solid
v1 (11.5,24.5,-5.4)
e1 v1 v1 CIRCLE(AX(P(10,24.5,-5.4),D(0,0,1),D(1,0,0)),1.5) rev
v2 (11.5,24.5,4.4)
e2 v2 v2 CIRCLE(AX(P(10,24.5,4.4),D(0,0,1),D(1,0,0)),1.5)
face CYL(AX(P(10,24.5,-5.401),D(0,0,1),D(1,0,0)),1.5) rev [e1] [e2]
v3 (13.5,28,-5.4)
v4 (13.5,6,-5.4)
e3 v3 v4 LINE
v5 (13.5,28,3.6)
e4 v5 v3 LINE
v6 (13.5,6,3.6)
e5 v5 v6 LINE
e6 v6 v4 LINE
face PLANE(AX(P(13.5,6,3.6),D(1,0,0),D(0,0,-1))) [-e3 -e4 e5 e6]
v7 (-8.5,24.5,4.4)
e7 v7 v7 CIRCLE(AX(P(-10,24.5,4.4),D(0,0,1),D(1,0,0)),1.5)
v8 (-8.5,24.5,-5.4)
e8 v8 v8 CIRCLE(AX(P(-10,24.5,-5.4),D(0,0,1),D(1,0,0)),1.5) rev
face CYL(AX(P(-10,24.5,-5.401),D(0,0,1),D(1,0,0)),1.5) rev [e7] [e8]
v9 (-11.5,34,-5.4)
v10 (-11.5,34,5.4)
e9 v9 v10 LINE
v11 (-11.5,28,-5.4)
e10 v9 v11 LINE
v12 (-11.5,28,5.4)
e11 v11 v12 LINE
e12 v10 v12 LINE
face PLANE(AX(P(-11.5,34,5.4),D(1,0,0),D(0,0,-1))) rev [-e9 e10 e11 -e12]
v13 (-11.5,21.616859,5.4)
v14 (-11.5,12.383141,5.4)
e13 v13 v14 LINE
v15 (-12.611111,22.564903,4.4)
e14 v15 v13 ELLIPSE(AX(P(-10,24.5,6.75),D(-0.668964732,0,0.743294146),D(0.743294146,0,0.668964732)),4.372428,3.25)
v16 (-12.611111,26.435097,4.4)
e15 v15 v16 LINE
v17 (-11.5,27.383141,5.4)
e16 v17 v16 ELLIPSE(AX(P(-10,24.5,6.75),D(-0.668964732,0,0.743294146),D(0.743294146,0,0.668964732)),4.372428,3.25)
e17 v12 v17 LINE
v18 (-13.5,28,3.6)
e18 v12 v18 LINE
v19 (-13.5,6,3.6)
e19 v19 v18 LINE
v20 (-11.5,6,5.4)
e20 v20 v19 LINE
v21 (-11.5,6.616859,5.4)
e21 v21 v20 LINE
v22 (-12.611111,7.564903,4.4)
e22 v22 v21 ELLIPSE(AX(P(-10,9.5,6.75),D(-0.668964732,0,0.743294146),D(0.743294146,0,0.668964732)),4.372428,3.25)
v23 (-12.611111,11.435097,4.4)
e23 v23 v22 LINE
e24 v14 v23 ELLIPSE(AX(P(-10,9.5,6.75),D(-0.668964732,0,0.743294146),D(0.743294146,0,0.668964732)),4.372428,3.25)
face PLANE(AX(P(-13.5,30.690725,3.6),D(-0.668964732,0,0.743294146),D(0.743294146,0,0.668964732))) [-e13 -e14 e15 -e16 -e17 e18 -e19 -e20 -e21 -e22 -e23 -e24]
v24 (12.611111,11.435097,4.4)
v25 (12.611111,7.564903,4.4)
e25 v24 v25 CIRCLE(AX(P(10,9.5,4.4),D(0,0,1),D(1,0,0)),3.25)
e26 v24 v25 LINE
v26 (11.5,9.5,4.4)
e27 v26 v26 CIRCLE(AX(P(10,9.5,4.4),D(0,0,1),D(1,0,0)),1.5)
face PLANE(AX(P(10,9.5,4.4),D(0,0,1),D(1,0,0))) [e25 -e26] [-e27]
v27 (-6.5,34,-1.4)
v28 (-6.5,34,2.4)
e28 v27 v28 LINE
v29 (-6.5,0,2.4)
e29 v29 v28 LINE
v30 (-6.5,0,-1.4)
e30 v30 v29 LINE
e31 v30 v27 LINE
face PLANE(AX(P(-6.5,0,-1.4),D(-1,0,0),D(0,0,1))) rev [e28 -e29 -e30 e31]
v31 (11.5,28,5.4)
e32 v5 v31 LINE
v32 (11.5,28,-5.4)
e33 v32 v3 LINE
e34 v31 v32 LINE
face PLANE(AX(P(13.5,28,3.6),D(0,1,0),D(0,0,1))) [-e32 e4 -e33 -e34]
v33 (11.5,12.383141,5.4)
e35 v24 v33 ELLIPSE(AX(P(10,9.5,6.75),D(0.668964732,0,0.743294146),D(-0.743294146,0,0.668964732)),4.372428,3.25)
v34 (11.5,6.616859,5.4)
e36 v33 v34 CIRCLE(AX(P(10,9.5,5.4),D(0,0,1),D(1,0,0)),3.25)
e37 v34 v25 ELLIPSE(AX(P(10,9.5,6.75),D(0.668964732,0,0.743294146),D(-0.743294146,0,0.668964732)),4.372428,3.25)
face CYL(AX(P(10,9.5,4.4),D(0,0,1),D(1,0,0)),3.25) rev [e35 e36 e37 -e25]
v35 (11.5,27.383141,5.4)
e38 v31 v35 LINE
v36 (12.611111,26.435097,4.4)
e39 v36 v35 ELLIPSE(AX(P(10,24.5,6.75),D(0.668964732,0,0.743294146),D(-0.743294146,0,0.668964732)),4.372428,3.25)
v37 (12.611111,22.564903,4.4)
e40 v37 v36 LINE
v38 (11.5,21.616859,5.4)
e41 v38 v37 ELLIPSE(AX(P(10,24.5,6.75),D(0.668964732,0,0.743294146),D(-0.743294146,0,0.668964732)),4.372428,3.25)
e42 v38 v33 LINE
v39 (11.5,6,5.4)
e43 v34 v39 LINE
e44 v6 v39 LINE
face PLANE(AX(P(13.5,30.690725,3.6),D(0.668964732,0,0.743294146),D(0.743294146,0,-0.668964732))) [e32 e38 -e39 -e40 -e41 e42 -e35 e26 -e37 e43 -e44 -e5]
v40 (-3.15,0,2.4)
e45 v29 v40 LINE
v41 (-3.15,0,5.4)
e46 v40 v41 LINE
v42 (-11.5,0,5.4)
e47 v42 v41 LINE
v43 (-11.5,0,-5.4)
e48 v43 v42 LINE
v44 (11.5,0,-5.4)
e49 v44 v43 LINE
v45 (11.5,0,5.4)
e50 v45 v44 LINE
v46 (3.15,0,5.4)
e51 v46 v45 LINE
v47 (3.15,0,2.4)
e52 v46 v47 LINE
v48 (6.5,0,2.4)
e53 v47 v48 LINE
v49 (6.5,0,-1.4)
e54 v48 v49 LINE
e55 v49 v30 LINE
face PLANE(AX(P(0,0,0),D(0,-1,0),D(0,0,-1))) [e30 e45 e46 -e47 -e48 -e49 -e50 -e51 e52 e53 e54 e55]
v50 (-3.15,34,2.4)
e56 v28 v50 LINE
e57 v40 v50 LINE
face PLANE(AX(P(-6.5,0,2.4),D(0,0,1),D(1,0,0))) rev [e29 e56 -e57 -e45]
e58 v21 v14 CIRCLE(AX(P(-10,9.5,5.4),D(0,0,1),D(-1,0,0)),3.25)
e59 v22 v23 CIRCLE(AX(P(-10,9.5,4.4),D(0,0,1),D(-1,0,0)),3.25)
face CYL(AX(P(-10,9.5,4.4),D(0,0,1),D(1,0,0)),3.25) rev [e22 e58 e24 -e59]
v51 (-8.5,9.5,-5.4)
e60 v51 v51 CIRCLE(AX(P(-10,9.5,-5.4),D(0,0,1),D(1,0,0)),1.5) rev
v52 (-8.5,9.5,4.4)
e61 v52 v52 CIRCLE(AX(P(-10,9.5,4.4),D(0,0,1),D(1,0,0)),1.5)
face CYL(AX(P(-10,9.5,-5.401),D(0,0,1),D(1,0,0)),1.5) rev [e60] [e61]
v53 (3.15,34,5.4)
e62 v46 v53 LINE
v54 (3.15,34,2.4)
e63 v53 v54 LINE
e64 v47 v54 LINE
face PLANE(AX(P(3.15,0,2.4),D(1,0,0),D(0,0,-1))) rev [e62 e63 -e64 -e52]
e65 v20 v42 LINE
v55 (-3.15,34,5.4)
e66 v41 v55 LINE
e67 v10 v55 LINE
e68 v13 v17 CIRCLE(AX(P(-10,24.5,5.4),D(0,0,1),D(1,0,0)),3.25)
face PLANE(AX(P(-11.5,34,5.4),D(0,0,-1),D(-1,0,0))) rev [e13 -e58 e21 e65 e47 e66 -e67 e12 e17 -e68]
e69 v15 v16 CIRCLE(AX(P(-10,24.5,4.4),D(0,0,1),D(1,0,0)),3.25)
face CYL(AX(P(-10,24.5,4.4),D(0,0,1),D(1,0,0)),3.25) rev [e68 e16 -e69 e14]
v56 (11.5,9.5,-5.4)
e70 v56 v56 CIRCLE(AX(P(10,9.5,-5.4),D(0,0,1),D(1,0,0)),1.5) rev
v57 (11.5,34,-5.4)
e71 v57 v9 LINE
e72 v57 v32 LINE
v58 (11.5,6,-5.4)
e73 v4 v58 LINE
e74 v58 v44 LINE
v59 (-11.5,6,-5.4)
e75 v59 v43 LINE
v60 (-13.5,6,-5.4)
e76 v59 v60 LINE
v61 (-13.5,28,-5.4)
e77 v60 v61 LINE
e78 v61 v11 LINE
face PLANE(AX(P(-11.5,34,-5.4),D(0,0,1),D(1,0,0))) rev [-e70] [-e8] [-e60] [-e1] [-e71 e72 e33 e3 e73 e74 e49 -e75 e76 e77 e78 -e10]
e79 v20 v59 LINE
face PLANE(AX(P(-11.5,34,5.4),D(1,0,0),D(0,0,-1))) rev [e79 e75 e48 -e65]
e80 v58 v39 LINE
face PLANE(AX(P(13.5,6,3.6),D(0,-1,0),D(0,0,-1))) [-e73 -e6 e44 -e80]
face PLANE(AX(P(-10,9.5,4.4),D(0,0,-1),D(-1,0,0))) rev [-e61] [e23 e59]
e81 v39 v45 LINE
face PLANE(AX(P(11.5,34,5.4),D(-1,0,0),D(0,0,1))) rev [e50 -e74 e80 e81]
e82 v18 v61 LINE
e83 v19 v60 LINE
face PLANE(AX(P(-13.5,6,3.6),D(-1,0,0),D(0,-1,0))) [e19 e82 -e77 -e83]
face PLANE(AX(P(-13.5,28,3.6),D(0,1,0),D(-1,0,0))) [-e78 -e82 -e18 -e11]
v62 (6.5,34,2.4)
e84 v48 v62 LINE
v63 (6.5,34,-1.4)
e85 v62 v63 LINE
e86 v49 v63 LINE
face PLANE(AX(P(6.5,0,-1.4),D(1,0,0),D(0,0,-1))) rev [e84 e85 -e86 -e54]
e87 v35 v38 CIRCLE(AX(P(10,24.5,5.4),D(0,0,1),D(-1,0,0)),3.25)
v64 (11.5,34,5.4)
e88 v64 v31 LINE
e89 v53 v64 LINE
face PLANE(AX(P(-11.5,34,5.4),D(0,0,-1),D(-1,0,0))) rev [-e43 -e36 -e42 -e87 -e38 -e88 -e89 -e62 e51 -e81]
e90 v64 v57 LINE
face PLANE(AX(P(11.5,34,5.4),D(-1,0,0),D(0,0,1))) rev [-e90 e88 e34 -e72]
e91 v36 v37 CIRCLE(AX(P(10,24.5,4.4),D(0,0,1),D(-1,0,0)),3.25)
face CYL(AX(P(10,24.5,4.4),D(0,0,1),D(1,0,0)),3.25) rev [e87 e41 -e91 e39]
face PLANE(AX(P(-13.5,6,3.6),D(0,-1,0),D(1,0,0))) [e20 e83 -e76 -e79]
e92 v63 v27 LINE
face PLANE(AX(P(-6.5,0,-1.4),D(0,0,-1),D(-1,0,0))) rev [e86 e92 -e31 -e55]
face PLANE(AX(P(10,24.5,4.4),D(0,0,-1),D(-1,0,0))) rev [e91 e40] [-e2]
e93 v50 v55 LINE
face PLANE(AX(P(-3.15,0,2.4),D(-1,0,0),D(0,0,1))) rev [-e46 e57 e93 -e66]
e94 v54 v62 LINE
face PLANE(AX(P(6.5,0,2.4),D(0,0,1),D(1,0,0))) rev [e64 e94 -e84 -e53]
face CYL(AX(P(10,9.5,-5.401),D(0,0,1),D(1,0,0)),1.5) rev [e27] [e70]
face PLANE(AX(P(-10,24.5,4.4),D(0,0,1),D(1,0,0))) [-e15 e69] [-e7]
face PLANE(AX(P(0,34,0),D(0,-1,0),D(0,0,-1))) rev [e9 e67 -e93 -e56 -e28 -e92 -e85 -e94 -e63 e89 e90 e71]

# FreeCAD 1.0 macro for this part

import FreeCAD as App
import Part
import Sketcher

V = App.Vector
Q = App.Units.Quantity

doc = App.newDocument("Part")
params = doc.addObject("Spreadsheet::Sheet", "Params")
for row, (alias, value) in enumerate([
    ("sketch1_width", "23 mm"),
    ("sketch1_height", "10.8 mm"),
    ("pad1_length", "34 mm"),
    ("sketch2_width", "13 mm"),
    ("sketch2_height", "3 mm"),
    ("sketch2_width2", "6.3 mm"),
    ("sketch2_height2", "3.8 mm"),
    ("sketch3_width", "7 mm"),
    ("sketch3_height", "22 mm"),
    ("pad2_length", "9 mm"),
    ("sketch4_width", "2 mm"),
    ("sketch4_height", "1.8 mm"),
    ("pad3_length", "22 mm"),
    ("sketch5_diameter", "6.5 mm"),
    ("pocket2_length", "1 mm"),
    ("sketch6_diameter", "3 mm"),
    ("sketch7_diameter", "3 mm"),
    ("sketch8_diameter", "3 mm"),
    ("sketch9_diameter", "3 mm"),
], start=1):
    params.set(f"A{row}", alias)
    params.set(f"B{row}", "=" + value)
    params.setAlias(f"B{row}", alias)

body = doc.addObject("PartDesign::Body", "Body")

# Sketch on XZ plane
sketch1 = body.newObject("Sketcher::SketchObject", "Sketch")
sketch1.AttachmentSupport = (doc.getObject("XZ_Plane"), [""])
sketch1.MapMode = "FlatFace"
sketch1.addGeometry([
    Part.LineSegment(V(-11.5, -5.4, 0), V(-11.5, 5.4, 0)),
    Part.LineSegment(V(-11.5, 5.4, 0), V(11.5, 5.4, 0)),
    Part.LineSegment(V(11.5, 5.4, 0), V(11.5, -5.4, 0)),
    Part.LineSegment(V(11.5, -5.4, 0), V(-11.5, -5.4, 0)),
], False)
sketch1.addConstraint([
    Sketcher.Constraint("Coincident", 0, 2, 1, 1),
    Sketcher.Constraint("Coincident", 1, 2, 2, 1),
    Sketcher.Constraint("Coincident", 2, 2, 3, 1),
    Sketcher.Constraint("Coincident", 3, 2, 0, 1),
    Sketcher.Constraint("Vertical", 0),
    Sketcher.Constraint("Horizontal", 1),
    Sketcher.Constraint("Vertical", 2),
    Sketcher.Constraint("Horizontal", 3),
    Sketcher.Constraint("Symmetric", 0, 2, 2, 2, -1, 1),
    Sketcher.Constraint("DistanceX", 1, 1, 1, 2, Q("23 mm")),
    Sketcher.Constraint("DistanceY", 0, 1, 0, 2, Q("10.8 mm")),
])
sketch1.setExpression("Constraints[9]", "Params.sketch1_width")
sketch1.setExpression("Constraints[10]", "Params.sketch1_height")
pad1 = body.newObject("PartDesign::Pad", "Pad")
pad1.Profile = sketch1
pad1.setExpression("Length", "Params.pad1_length")
pad1.Reversed = True

# Sketch on XZ plane
sketch2 = body.newObject("Sketcher::SketchObject", "Sketch001")
sketch2.AttachmentSupport = (doc.getObject("XZ_Plane"), [""])
sketch2.MapMode = "FlatFace"
sketch2.AttachmentOffset = App.Placement(V(0, 0, -34), App.Rotation())
sketch2.addGeometry([
    Part.LineSegment(V(6.5, -1.4, 0), V(-6.5, -1.4, 0)),  # 0
    Part.LineSegment(V(-6.5, -1.4, 0), V(-6.5, 2.4, 0)),  # 1
    Part.LineSegment(V(-6.5, 2.4, 0), V(-3.15, 2.4, 0)),  # 2
    Part.LineSegment(V(-3.15, 2.4, 0), V(-3.15, 5.4, 0)),  # 3
    Part.LineSegment(V(-3.15, 5.4, 0), V(3.15, 5.4, 0)),  # 4
    Part.LineSegment(V(3.15, 5.4, 0), V(3.15, 2.4, 0)),  # 5
    Part.LineSegment(V(3.15, 2.4, 0), V(6.5, 2.4, 0)),  # 6
    Part.LineSegment(V(6.5, 2.4, 0), V(6.5, -1.4, 0)),  # 7
], False)
sketch2.addConstraint([
    Sketcher.Constraint("Coincident", 0, 2, 1, 1),
    Sketcher.Constraint("Coincident", 1, 2, 2, 1),
    Sketcher.Constraint("Coincident", 2, 2, 3, 1),
    Sketcher.Constraint("Coincident", 3, 2, 4, 1),
    Sketcher.Constraint("Coincident", 4, 2, 5, 1),
    Sketcher.Constraint("Coincident", 5, 2, 6, 1),
    Sketcher.Constraint("Coincident", 6, 2, 7, 1),
    Sketcher.Constraint("Coincident", 7, 2, 0, 1),
    Sketcher.Constraint("Horizontal", 0),
    Sketcher.Constraint("Vertical", 1),
    Sketcher.Constraint("Horizontal", 2),
    Sketcher.Constraint("Vertical", 3),
    Sketcher.Constraint("Horizontal", 4),
    Sketcher.Constraint("Vertical", 5),
    Sketcher.Constraint("Horizontal", 6),
    Sketcher.Constraint("Vertical", 7),
    Sketcher.Constraint("Symmetric", 2, 2, 5, 2, -2),
    Sketcher.Constraint("Equal", 2, 6),
    Sketcher.Constraint("DistanceX", 0, 2, 0, 1, Q("13 mm")),
    Sketcher.Constraint("DistanceY", 3, 1, 3, 2, Q("3 mm")),
    Sketcher.Constraint("DistanceX", 4, 1, 4, 2, Q("6.3 mm")),
    Sketcher.Constraint("DistanceY", 1, 1, 1, 2, Q("3.8 mm")),
    Sketcher.Constraint("DistanceY", 0, 2, -1, 1, Q("1.4 mm")),
])
sketch2.setExpression("Constraints[18]", "Params.sketch2_width")
sketch2.setExpression("Constraints[19]", "Params.sketch2_height")
sketch2.setExpression("Constraints[20]", "Params.sketch2_width2")
sketch2.setExpression("Constraints[21]", "Params.sketch2_height2")
pocket1 = body.newObject("PartDesign::Pocket", "Pocket")
pocket1.Profile = sketch2
pocket1.Type = "ThroughAll"
pocket1.Reversed = True

# Sketch on XY plane
sketch3 = body.newObject("Sketcher::SketchObject", "Sketch002")
sketch3.AttachmentSupport = (doc.getObject("XY_Plane"), [""])
sketch3.MapMode = "FlatFace"
sketch3.AttachmentOffset = App.Placement(V(0, 0, -5.4), App.Rotation())
sketch3.addGeometry([
    Part.LineSegment(V(13.5, 28, 0), V(13.5, 6, 0)),  # 0
    Part.LineSegment(V(13.5, 6, 0), V(6.5, 6, 0)),  # 1
    Part.LineSegment(V(6.5, 6, 0), V(6.5, 28, 0)),  # 2
    Part.LineSegment(V(6.5, 28, 0), V(13.5, 28, 0)),  # 3
    Part.LineSegment(V(-6.5, 28, 0), V(-6.5, 6, 0)),  # 4
    Part.LineSegment(V(-6.5, 6, 0), V(-13.5, 6, 0)),  # 5
    Part.LineSegment(V(-13.5, 6, 0), V(-13.5, 28, 0)),  # 6
    Part.LineSegment(V(-13.5, 28, 0), V(-6.5, 28, 0)),  # 7
], False)
sketch3.addConstraint([
    Sketcher.Constraint("Coincident", 0, 2, 1, 1),
    Sketcher.Constraint("Coincident", 1, 2, 2, 1),
    Sketcher.Constraint("Coincident", 2, 2, 3, 1),
    Sketcher.Constraint("Coincident", 3, 2, 0, 1),
    Sketcher.Constraint("Coincident", 4, 2, 5, 1),
    Sketcher.Constraint("Coincident", 5, 2, 6, 1),
    Sketcher.Constraint("Coincident", 6, 2, 7, 1),
    Sketcher.Constraint("Coincident", 7, 2, 4, 1),
    Sketcher.Constraint("Vertical", 0),
    Sketcher.Constraint("Horizontal", 1),
    Sketcher.Constraint("Vertical", 2),
    Sketcher.Constraint("Horizontal", 3),
    Sketcher.Constraint("Vertical", 4),
    Sketcher.Constraint("Horizontal", 5),
    Sketcher.Constraint("Vertical", 6),
    Sketcher.Constraint("Horizontal", 7),
    Sketcher.Constraint("Symmetric", 1, 2, 4, 2, -2),
    Sketcher.Constraint("Symmetric", 3, 2, 6, 2, -2),
    Sketcher.Constraint("DistanceX", 1, 2, 1, 1, Q("7 mm")),
    Sketcher.Constraint("DistanceY", 0, 2, 0, 1, Q("22 mm")),
    Sketcher.Constraint("DistanceY", -1, 1, 0, 2, Q("6 mm")),
    Sketcher.Constraint("DistanceX", 4, 2, 1, 2, Q("13 mm")),
])
sketch3.setExpression("Constraints[18]", "Params.sketch3_width")
sketch3.setExpression("Constraints[19]", "Params.sketch3_height")
pad2 = body.newObject("PartDesign::Pad", "Pad001")
pad2.Profile = sketch3
pad2.setExpression("Length", "Params.pad2_length")

# Sketch on XZ plane
sketch4 = body.newObject("Sketcher::SketchObject", "Sketch003")
sketch4.AttachmentSupport = (doc.getObject("XZ_Plane"), [""])
sketch4.MapMode = "FlatFace"
sketch4.AttachmentOffset = App.Placement(V(0, 0, -6), App.Rotation())
sketch4.addGeometry([
    Part.LineSegment(V(11.5, 5.4, 0), V(11.5, 3.6, 0)),  # 0
    Part.LineSegment(V(11.5, 3.6, 0), V(13.5, 3.6, 0)),  # 1
    Part.LineSegment(V(13.5, 3.6, 0), V(11.5, 5.4, 0)),  # 2
    Part.LineSegment(V(-11.5, 5.4, 0), V(-13.5, 3.6, 0)),  # 3
    Part.LineSegment(V(-13.5, 3.6, 0), V(-11.5, 3.6, 0)),  # 4
    Part.LineSegment(V(-11.5, 3.6, 0), V(-11.5, 5.4, 0)),  # 5
], False)
sketch4.addConstraint([
    Sketcher.Constraint("Coincident", 0, 2, 1, 1),
    Sketcher.Constraint("Coincident", 1, 2, 2, 1),
    Sketcher.Constraint("Coincident", 2, 2, 0, 1),
    Sketcher.Constraint("Coincident", 3, 2, 4, 1),
    Sketcher.Constraint("Coincident", 4, 2, 5, 1),
    Sketcher.Constraint("Coincident", 5, 2, 3, 1),
    Sketcher.Constraint("Vertical", 0),
    Sketcher.Constraint("Horizontal", 1),
    Sketcher.Constraint("Horizontal", 4),
    Sketcher.Constraint("Vertical", 5),
    Sketcher.Constraint("Symmetric", 1, 2, 3, 2, -2),
    Sketcher.Constraint("Symmetric", 2, 2, 5, 2, -2),
    Sketcher.Constraint("DistanceX", 1, 1, 1, 2, Q("2 mm")),
    Sketcher.Constraint("DistanceY", 0, 2, 0, 1, Q("1.8 mm")),
    Sketcher.Constraint("DistanceX", 3, 2, 0, 2, Q("25 mm")),
    Sketcher.Constraint("DistanceY", -1, 1, 0, 2, Q("3.6 mm")),
])
sketch4.setExpression("Constraints[12]", "Params.sketch4_width")
sketch4.setExpression("Constraints[13]", "Params.sketch4_height")
pad3 = body.newObject("PartDesign::Pad", "Pad002")
pad3.Profile = sketch4
pad3.setExpression("Length", "Params.pad3_length")
pad3.Reversed = True

# Sketch on XY plane
sketch5 = body.newObject("Sketcher::SketchObject", "Sketch004")
sketch5.AttachmentSupport = (doc.getObject("XY_Plane"), [""])
sketch5.MapMode = "FlatFace"
sketch5.AttachmentOffset = App.Placement(V(0, 0, 5.4), App.Rotation())
sketch5.addGeometry([
    Part.Circle(V(-10, 24.5, 0), V(0, 0, 1), 3.25),
    Part.Circle(V(-10, 9.5, 0), V(0, 0, 1), 3.25),
    Part.Circle(V(10, 9.5, 0), V(0, 0, 1), 3.25),
    Part.Circle(V(10, 24.5, 0), V(0, 0, 1), 3.25),
], False)
sketch5.addConstraint([
    Sketcher.Constraint("Equal", 0, 1),
    Sketcher.Constraint("Equal", 1, 2),
    Sketcher.Constraint("Equal", 2, 3),
    Sketcher.Constraint("Symmetric", 1, 3, 2, 3, -2),
    Sketcher.Constraint("Symmetric", 0, 3, 3, 3, -2),
    Sketcher.Constraint("Vertical", 0, 3, 1, 3),
    Sketcher.Constraint("Diameter", 0, Q("6.5 mm")),
    Sketcher.Constraint("DistanceX", 0, 3, -1, 1, Q("10 mm")),
    Sketcher.Constraint("DistanceY", 1, 3, 0, 3, Q("15 mm")),
    Sketcher.Constraint("DistanceY", -1, 1, 0, 3, Q("24.5 mm")),
])
sketch5.setExpression("Constraints[6]", "Params.sketch5_diameter")
pocket2 = body.newObject("PartDesign::Pocket", "Pocket001")
pocket2.Profile = sketch5
pocket2.setExpression("Length", "Params.pocket2_length")

# Sketch on XY plane
sketch6 = body.newObject("Sketcher::SketchObject", "Sketch005")
sketch6.AttachmentSupport = (doc.getObject("XY_Plane"), [""])
sketch6.MapMode = "FlatFace"
sketch6.AttachmentOffset = App.Placement(V(0, 0, 4.4), App.Rotation())
sketch6.addGeometry(Part.Circle(V(-10, 24.5, 0), V(0, 0, 1), 1.5), False)
sketch6.addConstraint([
    Sketcher.Constraint("Diameter", 0, Q("3 mm")),
    Sketcher.Constraint("DistanceX", 0, 3, -1, 1, Q("10 mm")),
    Sketcher.Constraint("DistanceY", -1, 1, 0, 3, Q("24.5 mm")),
])
sketch6.setExpression("Constraints[0]", "Params.sketch6_diameter")
pocket3 = body.newObject("PartDesign::Pocket", "Pocket002")
pocket3.Profile = sketch6
pocket3.Type = "UpToFirst"

# Sketch on XY plane
sketch7 = body.newObject("Sketcher::SketchObject", "Sketch006")
sketch7.AttachmentSupport = (doc.getObject("XY_Plane"), [""])
sketch7.MapMode = "FlatFace"
sketch7.AttachmentOffset = App.Placement(V(0, 0, 4.4), App.Rotation())
sketch7.addGeometry(Part.Circle(V(10, 24.5, 0), V(0, 0, 1), 1.5), False)
sketch7.addConstraint([
    Sketcher.Constraint("Diameter", 0, Q("3 mm")),
    Sketcher.Constraint("DistanceX", -1, 1, 0, 3, Q("10 mm")),
    Sketcher.Constraint("DistanceY", -1, 1, 0, 3, Q("24.5 mm")),
])
sketch7.setExpression("Constraints[0]", "Params.sketch7_diameter")
pocket4 = body.newObject("PartDesign::Pocket", "Pocket003")
pocket4.Profile = sketch7
pocket4.Type = "UpToFirst"

# Sketch on XY plane
sketch8 = body.newObject("Sketcher::SketchObject", "Sketch007")
sketch8.AttachmentSupport = (doc.getObject("XY_Plane"), [""])
sketch8.MapMode = "FlatFace"
sketch8.AttachmentOffset = App.Placement(V(0, 0, 4.4), App.Rotation())
sketch8.addGeometry(Part.Circle(V(-10, 9.5, 0), V(0, 0, 1), 1.5), False)
sketch8.addConstraint([
    Sketcher.Constraint("Diameter", 0, Q("3 mm")),
    Sketcher.Constraint("DistanceX", 0, 3, -1, 1, Q("10 mm")),
    Sketcher.Constraint("DistanceY", -1, 1, 0, 3, Q("9.5 mm")),
])
sketch8.setExpression("Constraints[0]", "Params.sketch8_diameter")
pocket5 = body.newObject("PartDesign::Pocket", "Pocket004")
pocket5.Profile = sketch8
pocket5.Type = "UpToFirst"

# Sketch on XY plane
sketch9 = body.newObject("Sketcher::SketchObject", "Sketch008")
sketch9.AttachmentSupport = (doc.getObject("XY_Plane"), [""])
sketch9.MapMode = "FlatFace"
sketch9.AttachmentOffset = App.Placement(V(0, 0, 4.4), App.Rotation())
sketch9.addGeometry(Part.Circle(V(10, 9.5, 0), V(0, 0, 1), 1.5), False)
sketch9.addConstraint([
    Sketcher.Constraint("Diameter", 0, Q("3 mm")),
    Sketcher.Constraint("DistanceX", -1, 1, 0, 3, Q("10 mm")),
    Sketcher.Constraint("DistanceY", -1, 1, 0, 3, Q("9.5 mm")),
])
sketch9.setExpression("Constraints[0]", "Params.sketch9_diameter")
pocket6 = body.newObject("PartDesign::Pocket", "Pocket005")
pocket6.Profile = sketch9
pocket6.Type = "UpToFirst"

doc.recompute()
